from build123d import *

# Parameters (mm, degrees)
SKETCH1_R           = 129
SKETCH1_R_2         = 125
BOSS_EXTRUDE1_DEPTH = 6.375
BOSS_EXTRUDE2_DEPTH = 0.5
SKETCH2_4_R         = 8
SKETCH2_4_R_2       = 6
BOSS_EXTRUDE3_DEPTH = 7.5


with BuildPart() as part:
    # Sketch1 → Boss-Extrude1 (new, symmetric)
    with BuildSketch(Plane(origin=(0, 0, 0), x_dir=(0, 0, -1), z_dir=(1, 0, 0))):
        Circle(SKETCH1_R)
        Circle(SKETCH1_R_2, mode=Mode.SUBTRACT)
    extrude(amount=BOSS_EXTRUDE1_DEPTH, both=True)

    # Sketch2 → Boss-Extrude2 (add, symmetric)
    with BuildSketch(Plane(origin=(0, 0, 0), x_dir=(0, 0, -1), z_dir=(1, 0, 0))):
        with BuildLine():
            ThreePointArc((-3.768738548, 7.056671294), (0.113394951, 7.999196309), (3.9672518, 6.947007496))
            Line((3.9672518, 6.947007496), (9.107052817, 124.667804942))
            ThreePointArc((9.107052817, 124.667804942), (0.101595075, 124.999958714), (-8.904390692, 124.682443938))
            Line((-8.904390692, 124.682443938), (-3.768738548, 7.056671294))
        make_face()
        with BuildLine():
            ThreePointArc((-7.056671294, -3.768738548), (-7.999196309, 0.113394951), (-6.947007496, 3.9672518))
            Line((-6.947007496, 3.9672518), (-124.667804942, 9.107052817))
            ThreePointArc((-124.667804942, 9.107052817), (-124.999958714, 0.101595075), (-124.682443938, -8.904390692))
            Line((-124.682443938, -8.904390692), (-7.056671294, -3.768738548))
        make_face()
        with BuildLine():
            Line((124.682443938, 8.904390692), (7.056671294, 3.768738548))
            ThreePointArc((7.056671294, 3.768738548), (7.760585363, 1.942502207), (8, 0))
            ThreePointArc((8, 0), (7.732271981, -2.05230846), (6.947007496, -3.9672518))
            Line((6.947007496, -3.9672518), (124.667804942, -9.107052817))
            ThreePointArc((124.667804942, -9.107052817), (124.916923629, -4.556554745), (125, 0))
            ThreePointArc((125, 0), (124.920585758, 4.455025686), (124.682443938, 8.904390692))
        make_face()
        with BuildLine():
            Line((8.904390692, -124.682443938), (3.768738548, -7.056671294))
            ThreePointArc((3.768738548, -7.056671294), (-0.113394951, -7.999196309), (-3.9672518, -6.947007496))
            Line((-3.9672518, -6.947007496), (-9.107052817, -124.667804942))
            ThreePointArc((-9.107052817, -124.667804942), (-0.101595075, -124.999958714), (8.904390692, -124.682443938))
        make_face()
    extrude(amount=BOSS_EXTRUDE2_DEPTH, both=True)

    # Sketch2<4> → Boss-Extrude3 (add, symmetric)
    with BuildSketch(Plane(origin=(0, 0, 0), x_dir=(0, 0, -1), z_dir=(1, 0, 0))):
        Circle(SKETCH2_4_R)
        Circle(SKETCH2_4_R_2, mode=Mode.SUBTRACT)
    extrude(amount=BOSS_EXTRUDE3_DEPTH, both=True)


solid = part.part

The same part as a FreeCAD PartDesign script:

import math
import FreeCAD as App
import Part
import Sketcher

V = App.Vector
Q = App.Units.Quantity

doc = App.newDocument("Part")
body = doc.addObject("PartDesign::Body", "Body")

# Sketch on YZ plane
sketch1 = body.newObject("Sketcher::SketchObject", "Sketch")
sketch1.AttachmentSupport = (doc.getObject("YZ_Plane"), [""])
sketch1.MapMode = "FlatFace"
sketch1.addGeometry(Part.Circle(V(0, 0, 0), V(0, 0, 1), 129), False)
sketch1.addGeometry(Part.Circle(V(0, 0, 0), V(0, 0, 1), 125), False)
sketch1.addConstraint(Sketcher.Constraint("Coincident", 0, 3, -1, 1))
sketch1.addConstraint(Sketcher.Constraint("Coincident", 1, 3, -1, 1))
sketch1.addConstraint(Sketcher.Constraint("Diameter", 0, 258.0))
sketch1.addConstraint(Sketcher.Constraint("Diameter", 1, 250.0))
pad1 = body.newObject("PartDesign::Pad", "Pad")
pad1.Profile = sketch1
pad1.Length = 12.75
pad1.Midplane = True

# Sketch on YZ plane
sketch2 = body.newObject("Sketcher::SketchObject", "Sketch001")
sketch2.AttachmentSupport = (doc.getObject("YZ_Plane"), [""])
sketch2.MapMode = "FlatFace"
sketch2.addGeometry(Part.ArcOfCircle(Part.Circle(V(0, 0, 0), V(0, 0, 1), 8), math.radians(-29.729542), math.radians(28.105225)), False)
sketch2.addGeometry(Part.LineSegment(V(6.947007, -3.967252, 0), V(124.667805, -9.107053, 0)), False)
sketch2.addGeometry(Part.ArcOfCircle(Part.Circle(V(0, 0, 0), V(0, 0, 1), 125), math.radians(-4.178067), math.radians(4.084932)), False)
sketch2.addGeometry(Part.LineSegment(V(124.682444, 8.904391, 0), V(7.056671, 3.768739, 0)), False)
sketch2.addGeometry(Part.ArcOfCircle(Part.Circle(V(0, 0, 0), V(0, 0, 1), 8), math.radians(60.270458), math.radians(118.105225)), False)
sketch2.addGeometry(Part.LineSegment(V(3.967252, 6.947007, 0), V(9.107053, 124.667805, 0)), False)
sketch2.addGeometry(Part.ArcOfCircle(Part.Circle(V(0, 0, 0), V(0, 0, 1), 125), math.radians(85.821933), math.radians(94.084932)), False)
sketch2.addGeometry(Part.LineSegment(V(-8.904391, 124.682444, 0), V(-3.768739, 7.056671, 0)), False)
sketch2.addGeometry(Part.LineSegment(V(8.904391, -124.682444, 0), V(3.768739, -7.056671, 0)), False)
sketch2.addGeometry(Part.ArcOfCircle(Part.Circle(V(0, 0, 0), V(0, 0, 1), 8), math.radians(-90), math.radians(-61.894775)), False)
sketch2.addGeometry(Part.ArcOfCircle(Part.Circle(V(0, 0, 0), V(0, 0, 1), 8), math.radians(-119.729542), math.radians(-90)), False)
sketch2.addGeometry(Part.LineSegment(V(-3.967252, -6.947007, 0), V(-9.107053, -124.667805, 0)), False)
sketch2.addGeometry(Part.ArcOfCircle(Part.Circle(V(0, 0, 0), V(0, 0, 1), 125), math.radians(-94.178067), math.radians(-90)), False)
sketch2.addGeometry(Part.ArcOfCircle(Part.Circle(V(0, 0, 0), V(0, 0, 1), 125), math.radians(-90), math.radians(-85.915068)), False)
sketch2.addGeometry(Part.LineSegment(V(-124.682444, -8.904391, 0), V(-7.056671, -3.768739, 0)), False)
sketch2.addGeometry(Part.ArcOfCircle(Part.Circle(V(0, 0, 0), V(0, 0, 1), 8), math.radians(150.270458), math.radians(208.105225)), False)
sketch2.addGeometry(Part.LineSegment(V(-6.947007, 3.967252, 0), V(-124.667805, 9.107053, 0)), False)
sketch2.addGeometry(Part.ArcOfCircle(Part.Circle(V(0, 0, 0), V(0, 0, 1), 125), math.radians(175.821933), math.radians(184.084932)), False)
sketch2.addConstraint(Sketcher.Constraint("Coincident", 0, 1, 1, 1))
sketch2.addConstraint(Sketcher.Constraint("Coincident", 1, 2, 2, 1))
sketch2.addConstraint(Sketcher.Constraint("Coincident", 2, 2, 3, 1))
sketch2.addConstraint(Sketcher.Constraint("Coincident", 3, 2, 0, 2))
sketch2.addConstraint(Sketcher.Constraint("Coincident", 4, 1, 5, 1))
sketch2.addConstraint(Sketcher.Constraint("Coincident", 5, 2, 6, 1))
sketch2.addConstraint(Sketcher.Constraint("Coincident", 6, 2, 7, 1))
sketch2.addConstraint(Sketcher.Constraint("Coincident", 7, 2, 4, 2))
sketch2.addConstraint(Sketcher.Constraint("Coincident", 8, 2, 9, 2))
sketch2.addConstraint(Sketcher.Constraint("Tangent", 9, 1, 10, 2))
sketch2.addConstraint(Sketcher.Constraint("Coincident", 10, 1, 11, 1))
sketch2.addConstraint(Sketcher.Constraint("Coincident", 11, 2, 12, 1))
sketch2.addConstraint(Sketcher.Constraint("Tangent", 12, 2, 13, 1))
sketch2.addConstraint(Sketcher.Constraint("Coincident", 13, 2, 8, 1))
sketch2.addConstraint(Sketcher.Constraint("Coincident", 14, 2, 15, 2))
sketch2.addConstraint(Sketcher.Constraint("Coincident", 15, 1, 16, 1))
sketch2.addConstraint(Sketcher.Constraint("Coincident", 16, 2, 17, 1))
sketch2.addConstraint(Sketcher.Constraint("Coincident", 17, 2, 14, 1))
sketch2.addConstraint(Sketcher.Constraint("Coincident", 0, 3, -1, 1))
sketch2.addConstraint(Sketcher.Constraint("Coincident", 2, 3, -1, 1))
sketch2.addConstraint(Sketcher.Constraint("Coincident", 4, 3, -1, 1))
sketch2.addConstraint(Sketcher.Constraint("Coincident", 6, 3, -1, 1))
sketch2.addConstraint(Sketcher.Constraint("Coincident", 9, 3, -1, 1))
sketch2.addConstraint(Sketcher.Constraint("Coincident", 12, 3, -1, 1))
sketch2.addConstraint(Sketcher.Constraint("Coincident", 15, 3, -1, 1))
sketch2.addConstraint(Sketcher.Constraint("Coincident", 17, 3, -1, 1))
sketch2.addConstraint(Sketcher.Constraint("Equal", 0, 4))
sketch2.addConstraint(Sketcher.Constraint("Equal", 2, 6))
sketch2.addConstraint(Sketcher.Constraint("Equal", 4, 9))
sketch2.addConstraint(Sketcher.Constraint("Equal", 9, 10))
sketch2.addConstraint(Sketcher.Constraint("Equal", 6, 12))
sketch2.addConstraint(Sketcher.Constraint("Equal", 12, 13))
sketch2.addConstraint(Sketcher.Constraint("Equal", 10, 15))
sketch2.addConstraint(Sketcher.Constraint("Equal", 13, 17))
sketch2.addConstraint(Sketcher.Constraint("PointOnObject", 9, 1, -2))
sketch2.addConstraint(Sketcher.Constraint("PointOnObject", 12, 2, -2))
sketch2.addConstraint(Sketcher.Constraint("Perpendicular", 1, 5))
sketch2.addConstraint(Sketcher.Constraint("Perpendicular", 3, 7))
sketch2.addConstraint(Sketcher.Constraint("Parallel", 7, 8))
sketch2.addConstraint(Sketcher.Constraint("Parallel", 5, 11))
sketch2.addConstraint(Sketcher.Constraint("Perpendicular", 8, 14))
sketch2.addConstraint(Sketcher.Constraint("Perpendicular", 11, 16))
sketch2.addConstraint(Sketcher.Constraint("Equal", 1, 5))
sketch2.addConstraint(Sketcher.Constraint("Equal", 3, 7))
sketch2.addConstraint(Sketcher.Constraint("Equal", 7, 8))
sketch2.addConstraint(Sketcher.Constraint("Equal", 5, 11))
sketch2.addConstraint(Sketcher.Constraint("Equal", 8, 14))
sketch2.addConstraint(Sketcher.Constraint("Equal", 11, 16))
sketch2.addConstraint(Sketcher.Constraint("Radius", 0, 8.0))
sketch2.addConstraint(Sketcher.Constraint("Radius", 2, 125.0))
sketch2.addConstraint(Sketcher.Constraint("Angle", 1, Q("-2.5 deg")))
sketch2.addConstraint(Sketcher.Constraint("Angle", 3, Q("-177.5 deg")))
sketch2.addConstraint(Sketcher.Constraint("Distance", 1, 117.832948))
sketch2.addConstraint(Sketcher.Constraint("DistanceY", -1, 1, 2, 2, 8.904391))
pad2 = body.newObject("PartDesign::Pad", "Pad001")
pad2.Profile = sketch2
pad2.Length = 1
pad2.Midplane = True

# Sketch on YZ plane
sketch3 = body.newObject("Sketcher::SketchObject", "Sketch002")
sketch3.AttachmentSupport = (doc.getObject("YZ_Plane"), [""])
sketch3.MapMode = "FlatFace"
sketch3.addGeometry(Part.Circle(V(0, 0, 0), V(0, 0, 1), 8), False)
sketch3.addGeometry(Part.Circle(V(0, 0, 0), V(0, 0, 1), 6), False)
sketch3.addConstraint(Sketcher.Constraint("Coincident", 0, 3, -1, 1))
sketch3.addConstraint(Sketcher.Constraint("Coincident", 1, 3, -1, 1))
sketch3.addConstraint(Sketcher.Constraint("Diameter", 0, 16.0))
sketch3.addConstraint(Sketcher.Constraint("Diameter", 1, 12.0))
pad3 = body.newObject("PartDesign::Pad", "Pad002")
pad3.Profile = sketch3
pad3.Length = 15
pad3.Midplane = True

doc.recompute()
